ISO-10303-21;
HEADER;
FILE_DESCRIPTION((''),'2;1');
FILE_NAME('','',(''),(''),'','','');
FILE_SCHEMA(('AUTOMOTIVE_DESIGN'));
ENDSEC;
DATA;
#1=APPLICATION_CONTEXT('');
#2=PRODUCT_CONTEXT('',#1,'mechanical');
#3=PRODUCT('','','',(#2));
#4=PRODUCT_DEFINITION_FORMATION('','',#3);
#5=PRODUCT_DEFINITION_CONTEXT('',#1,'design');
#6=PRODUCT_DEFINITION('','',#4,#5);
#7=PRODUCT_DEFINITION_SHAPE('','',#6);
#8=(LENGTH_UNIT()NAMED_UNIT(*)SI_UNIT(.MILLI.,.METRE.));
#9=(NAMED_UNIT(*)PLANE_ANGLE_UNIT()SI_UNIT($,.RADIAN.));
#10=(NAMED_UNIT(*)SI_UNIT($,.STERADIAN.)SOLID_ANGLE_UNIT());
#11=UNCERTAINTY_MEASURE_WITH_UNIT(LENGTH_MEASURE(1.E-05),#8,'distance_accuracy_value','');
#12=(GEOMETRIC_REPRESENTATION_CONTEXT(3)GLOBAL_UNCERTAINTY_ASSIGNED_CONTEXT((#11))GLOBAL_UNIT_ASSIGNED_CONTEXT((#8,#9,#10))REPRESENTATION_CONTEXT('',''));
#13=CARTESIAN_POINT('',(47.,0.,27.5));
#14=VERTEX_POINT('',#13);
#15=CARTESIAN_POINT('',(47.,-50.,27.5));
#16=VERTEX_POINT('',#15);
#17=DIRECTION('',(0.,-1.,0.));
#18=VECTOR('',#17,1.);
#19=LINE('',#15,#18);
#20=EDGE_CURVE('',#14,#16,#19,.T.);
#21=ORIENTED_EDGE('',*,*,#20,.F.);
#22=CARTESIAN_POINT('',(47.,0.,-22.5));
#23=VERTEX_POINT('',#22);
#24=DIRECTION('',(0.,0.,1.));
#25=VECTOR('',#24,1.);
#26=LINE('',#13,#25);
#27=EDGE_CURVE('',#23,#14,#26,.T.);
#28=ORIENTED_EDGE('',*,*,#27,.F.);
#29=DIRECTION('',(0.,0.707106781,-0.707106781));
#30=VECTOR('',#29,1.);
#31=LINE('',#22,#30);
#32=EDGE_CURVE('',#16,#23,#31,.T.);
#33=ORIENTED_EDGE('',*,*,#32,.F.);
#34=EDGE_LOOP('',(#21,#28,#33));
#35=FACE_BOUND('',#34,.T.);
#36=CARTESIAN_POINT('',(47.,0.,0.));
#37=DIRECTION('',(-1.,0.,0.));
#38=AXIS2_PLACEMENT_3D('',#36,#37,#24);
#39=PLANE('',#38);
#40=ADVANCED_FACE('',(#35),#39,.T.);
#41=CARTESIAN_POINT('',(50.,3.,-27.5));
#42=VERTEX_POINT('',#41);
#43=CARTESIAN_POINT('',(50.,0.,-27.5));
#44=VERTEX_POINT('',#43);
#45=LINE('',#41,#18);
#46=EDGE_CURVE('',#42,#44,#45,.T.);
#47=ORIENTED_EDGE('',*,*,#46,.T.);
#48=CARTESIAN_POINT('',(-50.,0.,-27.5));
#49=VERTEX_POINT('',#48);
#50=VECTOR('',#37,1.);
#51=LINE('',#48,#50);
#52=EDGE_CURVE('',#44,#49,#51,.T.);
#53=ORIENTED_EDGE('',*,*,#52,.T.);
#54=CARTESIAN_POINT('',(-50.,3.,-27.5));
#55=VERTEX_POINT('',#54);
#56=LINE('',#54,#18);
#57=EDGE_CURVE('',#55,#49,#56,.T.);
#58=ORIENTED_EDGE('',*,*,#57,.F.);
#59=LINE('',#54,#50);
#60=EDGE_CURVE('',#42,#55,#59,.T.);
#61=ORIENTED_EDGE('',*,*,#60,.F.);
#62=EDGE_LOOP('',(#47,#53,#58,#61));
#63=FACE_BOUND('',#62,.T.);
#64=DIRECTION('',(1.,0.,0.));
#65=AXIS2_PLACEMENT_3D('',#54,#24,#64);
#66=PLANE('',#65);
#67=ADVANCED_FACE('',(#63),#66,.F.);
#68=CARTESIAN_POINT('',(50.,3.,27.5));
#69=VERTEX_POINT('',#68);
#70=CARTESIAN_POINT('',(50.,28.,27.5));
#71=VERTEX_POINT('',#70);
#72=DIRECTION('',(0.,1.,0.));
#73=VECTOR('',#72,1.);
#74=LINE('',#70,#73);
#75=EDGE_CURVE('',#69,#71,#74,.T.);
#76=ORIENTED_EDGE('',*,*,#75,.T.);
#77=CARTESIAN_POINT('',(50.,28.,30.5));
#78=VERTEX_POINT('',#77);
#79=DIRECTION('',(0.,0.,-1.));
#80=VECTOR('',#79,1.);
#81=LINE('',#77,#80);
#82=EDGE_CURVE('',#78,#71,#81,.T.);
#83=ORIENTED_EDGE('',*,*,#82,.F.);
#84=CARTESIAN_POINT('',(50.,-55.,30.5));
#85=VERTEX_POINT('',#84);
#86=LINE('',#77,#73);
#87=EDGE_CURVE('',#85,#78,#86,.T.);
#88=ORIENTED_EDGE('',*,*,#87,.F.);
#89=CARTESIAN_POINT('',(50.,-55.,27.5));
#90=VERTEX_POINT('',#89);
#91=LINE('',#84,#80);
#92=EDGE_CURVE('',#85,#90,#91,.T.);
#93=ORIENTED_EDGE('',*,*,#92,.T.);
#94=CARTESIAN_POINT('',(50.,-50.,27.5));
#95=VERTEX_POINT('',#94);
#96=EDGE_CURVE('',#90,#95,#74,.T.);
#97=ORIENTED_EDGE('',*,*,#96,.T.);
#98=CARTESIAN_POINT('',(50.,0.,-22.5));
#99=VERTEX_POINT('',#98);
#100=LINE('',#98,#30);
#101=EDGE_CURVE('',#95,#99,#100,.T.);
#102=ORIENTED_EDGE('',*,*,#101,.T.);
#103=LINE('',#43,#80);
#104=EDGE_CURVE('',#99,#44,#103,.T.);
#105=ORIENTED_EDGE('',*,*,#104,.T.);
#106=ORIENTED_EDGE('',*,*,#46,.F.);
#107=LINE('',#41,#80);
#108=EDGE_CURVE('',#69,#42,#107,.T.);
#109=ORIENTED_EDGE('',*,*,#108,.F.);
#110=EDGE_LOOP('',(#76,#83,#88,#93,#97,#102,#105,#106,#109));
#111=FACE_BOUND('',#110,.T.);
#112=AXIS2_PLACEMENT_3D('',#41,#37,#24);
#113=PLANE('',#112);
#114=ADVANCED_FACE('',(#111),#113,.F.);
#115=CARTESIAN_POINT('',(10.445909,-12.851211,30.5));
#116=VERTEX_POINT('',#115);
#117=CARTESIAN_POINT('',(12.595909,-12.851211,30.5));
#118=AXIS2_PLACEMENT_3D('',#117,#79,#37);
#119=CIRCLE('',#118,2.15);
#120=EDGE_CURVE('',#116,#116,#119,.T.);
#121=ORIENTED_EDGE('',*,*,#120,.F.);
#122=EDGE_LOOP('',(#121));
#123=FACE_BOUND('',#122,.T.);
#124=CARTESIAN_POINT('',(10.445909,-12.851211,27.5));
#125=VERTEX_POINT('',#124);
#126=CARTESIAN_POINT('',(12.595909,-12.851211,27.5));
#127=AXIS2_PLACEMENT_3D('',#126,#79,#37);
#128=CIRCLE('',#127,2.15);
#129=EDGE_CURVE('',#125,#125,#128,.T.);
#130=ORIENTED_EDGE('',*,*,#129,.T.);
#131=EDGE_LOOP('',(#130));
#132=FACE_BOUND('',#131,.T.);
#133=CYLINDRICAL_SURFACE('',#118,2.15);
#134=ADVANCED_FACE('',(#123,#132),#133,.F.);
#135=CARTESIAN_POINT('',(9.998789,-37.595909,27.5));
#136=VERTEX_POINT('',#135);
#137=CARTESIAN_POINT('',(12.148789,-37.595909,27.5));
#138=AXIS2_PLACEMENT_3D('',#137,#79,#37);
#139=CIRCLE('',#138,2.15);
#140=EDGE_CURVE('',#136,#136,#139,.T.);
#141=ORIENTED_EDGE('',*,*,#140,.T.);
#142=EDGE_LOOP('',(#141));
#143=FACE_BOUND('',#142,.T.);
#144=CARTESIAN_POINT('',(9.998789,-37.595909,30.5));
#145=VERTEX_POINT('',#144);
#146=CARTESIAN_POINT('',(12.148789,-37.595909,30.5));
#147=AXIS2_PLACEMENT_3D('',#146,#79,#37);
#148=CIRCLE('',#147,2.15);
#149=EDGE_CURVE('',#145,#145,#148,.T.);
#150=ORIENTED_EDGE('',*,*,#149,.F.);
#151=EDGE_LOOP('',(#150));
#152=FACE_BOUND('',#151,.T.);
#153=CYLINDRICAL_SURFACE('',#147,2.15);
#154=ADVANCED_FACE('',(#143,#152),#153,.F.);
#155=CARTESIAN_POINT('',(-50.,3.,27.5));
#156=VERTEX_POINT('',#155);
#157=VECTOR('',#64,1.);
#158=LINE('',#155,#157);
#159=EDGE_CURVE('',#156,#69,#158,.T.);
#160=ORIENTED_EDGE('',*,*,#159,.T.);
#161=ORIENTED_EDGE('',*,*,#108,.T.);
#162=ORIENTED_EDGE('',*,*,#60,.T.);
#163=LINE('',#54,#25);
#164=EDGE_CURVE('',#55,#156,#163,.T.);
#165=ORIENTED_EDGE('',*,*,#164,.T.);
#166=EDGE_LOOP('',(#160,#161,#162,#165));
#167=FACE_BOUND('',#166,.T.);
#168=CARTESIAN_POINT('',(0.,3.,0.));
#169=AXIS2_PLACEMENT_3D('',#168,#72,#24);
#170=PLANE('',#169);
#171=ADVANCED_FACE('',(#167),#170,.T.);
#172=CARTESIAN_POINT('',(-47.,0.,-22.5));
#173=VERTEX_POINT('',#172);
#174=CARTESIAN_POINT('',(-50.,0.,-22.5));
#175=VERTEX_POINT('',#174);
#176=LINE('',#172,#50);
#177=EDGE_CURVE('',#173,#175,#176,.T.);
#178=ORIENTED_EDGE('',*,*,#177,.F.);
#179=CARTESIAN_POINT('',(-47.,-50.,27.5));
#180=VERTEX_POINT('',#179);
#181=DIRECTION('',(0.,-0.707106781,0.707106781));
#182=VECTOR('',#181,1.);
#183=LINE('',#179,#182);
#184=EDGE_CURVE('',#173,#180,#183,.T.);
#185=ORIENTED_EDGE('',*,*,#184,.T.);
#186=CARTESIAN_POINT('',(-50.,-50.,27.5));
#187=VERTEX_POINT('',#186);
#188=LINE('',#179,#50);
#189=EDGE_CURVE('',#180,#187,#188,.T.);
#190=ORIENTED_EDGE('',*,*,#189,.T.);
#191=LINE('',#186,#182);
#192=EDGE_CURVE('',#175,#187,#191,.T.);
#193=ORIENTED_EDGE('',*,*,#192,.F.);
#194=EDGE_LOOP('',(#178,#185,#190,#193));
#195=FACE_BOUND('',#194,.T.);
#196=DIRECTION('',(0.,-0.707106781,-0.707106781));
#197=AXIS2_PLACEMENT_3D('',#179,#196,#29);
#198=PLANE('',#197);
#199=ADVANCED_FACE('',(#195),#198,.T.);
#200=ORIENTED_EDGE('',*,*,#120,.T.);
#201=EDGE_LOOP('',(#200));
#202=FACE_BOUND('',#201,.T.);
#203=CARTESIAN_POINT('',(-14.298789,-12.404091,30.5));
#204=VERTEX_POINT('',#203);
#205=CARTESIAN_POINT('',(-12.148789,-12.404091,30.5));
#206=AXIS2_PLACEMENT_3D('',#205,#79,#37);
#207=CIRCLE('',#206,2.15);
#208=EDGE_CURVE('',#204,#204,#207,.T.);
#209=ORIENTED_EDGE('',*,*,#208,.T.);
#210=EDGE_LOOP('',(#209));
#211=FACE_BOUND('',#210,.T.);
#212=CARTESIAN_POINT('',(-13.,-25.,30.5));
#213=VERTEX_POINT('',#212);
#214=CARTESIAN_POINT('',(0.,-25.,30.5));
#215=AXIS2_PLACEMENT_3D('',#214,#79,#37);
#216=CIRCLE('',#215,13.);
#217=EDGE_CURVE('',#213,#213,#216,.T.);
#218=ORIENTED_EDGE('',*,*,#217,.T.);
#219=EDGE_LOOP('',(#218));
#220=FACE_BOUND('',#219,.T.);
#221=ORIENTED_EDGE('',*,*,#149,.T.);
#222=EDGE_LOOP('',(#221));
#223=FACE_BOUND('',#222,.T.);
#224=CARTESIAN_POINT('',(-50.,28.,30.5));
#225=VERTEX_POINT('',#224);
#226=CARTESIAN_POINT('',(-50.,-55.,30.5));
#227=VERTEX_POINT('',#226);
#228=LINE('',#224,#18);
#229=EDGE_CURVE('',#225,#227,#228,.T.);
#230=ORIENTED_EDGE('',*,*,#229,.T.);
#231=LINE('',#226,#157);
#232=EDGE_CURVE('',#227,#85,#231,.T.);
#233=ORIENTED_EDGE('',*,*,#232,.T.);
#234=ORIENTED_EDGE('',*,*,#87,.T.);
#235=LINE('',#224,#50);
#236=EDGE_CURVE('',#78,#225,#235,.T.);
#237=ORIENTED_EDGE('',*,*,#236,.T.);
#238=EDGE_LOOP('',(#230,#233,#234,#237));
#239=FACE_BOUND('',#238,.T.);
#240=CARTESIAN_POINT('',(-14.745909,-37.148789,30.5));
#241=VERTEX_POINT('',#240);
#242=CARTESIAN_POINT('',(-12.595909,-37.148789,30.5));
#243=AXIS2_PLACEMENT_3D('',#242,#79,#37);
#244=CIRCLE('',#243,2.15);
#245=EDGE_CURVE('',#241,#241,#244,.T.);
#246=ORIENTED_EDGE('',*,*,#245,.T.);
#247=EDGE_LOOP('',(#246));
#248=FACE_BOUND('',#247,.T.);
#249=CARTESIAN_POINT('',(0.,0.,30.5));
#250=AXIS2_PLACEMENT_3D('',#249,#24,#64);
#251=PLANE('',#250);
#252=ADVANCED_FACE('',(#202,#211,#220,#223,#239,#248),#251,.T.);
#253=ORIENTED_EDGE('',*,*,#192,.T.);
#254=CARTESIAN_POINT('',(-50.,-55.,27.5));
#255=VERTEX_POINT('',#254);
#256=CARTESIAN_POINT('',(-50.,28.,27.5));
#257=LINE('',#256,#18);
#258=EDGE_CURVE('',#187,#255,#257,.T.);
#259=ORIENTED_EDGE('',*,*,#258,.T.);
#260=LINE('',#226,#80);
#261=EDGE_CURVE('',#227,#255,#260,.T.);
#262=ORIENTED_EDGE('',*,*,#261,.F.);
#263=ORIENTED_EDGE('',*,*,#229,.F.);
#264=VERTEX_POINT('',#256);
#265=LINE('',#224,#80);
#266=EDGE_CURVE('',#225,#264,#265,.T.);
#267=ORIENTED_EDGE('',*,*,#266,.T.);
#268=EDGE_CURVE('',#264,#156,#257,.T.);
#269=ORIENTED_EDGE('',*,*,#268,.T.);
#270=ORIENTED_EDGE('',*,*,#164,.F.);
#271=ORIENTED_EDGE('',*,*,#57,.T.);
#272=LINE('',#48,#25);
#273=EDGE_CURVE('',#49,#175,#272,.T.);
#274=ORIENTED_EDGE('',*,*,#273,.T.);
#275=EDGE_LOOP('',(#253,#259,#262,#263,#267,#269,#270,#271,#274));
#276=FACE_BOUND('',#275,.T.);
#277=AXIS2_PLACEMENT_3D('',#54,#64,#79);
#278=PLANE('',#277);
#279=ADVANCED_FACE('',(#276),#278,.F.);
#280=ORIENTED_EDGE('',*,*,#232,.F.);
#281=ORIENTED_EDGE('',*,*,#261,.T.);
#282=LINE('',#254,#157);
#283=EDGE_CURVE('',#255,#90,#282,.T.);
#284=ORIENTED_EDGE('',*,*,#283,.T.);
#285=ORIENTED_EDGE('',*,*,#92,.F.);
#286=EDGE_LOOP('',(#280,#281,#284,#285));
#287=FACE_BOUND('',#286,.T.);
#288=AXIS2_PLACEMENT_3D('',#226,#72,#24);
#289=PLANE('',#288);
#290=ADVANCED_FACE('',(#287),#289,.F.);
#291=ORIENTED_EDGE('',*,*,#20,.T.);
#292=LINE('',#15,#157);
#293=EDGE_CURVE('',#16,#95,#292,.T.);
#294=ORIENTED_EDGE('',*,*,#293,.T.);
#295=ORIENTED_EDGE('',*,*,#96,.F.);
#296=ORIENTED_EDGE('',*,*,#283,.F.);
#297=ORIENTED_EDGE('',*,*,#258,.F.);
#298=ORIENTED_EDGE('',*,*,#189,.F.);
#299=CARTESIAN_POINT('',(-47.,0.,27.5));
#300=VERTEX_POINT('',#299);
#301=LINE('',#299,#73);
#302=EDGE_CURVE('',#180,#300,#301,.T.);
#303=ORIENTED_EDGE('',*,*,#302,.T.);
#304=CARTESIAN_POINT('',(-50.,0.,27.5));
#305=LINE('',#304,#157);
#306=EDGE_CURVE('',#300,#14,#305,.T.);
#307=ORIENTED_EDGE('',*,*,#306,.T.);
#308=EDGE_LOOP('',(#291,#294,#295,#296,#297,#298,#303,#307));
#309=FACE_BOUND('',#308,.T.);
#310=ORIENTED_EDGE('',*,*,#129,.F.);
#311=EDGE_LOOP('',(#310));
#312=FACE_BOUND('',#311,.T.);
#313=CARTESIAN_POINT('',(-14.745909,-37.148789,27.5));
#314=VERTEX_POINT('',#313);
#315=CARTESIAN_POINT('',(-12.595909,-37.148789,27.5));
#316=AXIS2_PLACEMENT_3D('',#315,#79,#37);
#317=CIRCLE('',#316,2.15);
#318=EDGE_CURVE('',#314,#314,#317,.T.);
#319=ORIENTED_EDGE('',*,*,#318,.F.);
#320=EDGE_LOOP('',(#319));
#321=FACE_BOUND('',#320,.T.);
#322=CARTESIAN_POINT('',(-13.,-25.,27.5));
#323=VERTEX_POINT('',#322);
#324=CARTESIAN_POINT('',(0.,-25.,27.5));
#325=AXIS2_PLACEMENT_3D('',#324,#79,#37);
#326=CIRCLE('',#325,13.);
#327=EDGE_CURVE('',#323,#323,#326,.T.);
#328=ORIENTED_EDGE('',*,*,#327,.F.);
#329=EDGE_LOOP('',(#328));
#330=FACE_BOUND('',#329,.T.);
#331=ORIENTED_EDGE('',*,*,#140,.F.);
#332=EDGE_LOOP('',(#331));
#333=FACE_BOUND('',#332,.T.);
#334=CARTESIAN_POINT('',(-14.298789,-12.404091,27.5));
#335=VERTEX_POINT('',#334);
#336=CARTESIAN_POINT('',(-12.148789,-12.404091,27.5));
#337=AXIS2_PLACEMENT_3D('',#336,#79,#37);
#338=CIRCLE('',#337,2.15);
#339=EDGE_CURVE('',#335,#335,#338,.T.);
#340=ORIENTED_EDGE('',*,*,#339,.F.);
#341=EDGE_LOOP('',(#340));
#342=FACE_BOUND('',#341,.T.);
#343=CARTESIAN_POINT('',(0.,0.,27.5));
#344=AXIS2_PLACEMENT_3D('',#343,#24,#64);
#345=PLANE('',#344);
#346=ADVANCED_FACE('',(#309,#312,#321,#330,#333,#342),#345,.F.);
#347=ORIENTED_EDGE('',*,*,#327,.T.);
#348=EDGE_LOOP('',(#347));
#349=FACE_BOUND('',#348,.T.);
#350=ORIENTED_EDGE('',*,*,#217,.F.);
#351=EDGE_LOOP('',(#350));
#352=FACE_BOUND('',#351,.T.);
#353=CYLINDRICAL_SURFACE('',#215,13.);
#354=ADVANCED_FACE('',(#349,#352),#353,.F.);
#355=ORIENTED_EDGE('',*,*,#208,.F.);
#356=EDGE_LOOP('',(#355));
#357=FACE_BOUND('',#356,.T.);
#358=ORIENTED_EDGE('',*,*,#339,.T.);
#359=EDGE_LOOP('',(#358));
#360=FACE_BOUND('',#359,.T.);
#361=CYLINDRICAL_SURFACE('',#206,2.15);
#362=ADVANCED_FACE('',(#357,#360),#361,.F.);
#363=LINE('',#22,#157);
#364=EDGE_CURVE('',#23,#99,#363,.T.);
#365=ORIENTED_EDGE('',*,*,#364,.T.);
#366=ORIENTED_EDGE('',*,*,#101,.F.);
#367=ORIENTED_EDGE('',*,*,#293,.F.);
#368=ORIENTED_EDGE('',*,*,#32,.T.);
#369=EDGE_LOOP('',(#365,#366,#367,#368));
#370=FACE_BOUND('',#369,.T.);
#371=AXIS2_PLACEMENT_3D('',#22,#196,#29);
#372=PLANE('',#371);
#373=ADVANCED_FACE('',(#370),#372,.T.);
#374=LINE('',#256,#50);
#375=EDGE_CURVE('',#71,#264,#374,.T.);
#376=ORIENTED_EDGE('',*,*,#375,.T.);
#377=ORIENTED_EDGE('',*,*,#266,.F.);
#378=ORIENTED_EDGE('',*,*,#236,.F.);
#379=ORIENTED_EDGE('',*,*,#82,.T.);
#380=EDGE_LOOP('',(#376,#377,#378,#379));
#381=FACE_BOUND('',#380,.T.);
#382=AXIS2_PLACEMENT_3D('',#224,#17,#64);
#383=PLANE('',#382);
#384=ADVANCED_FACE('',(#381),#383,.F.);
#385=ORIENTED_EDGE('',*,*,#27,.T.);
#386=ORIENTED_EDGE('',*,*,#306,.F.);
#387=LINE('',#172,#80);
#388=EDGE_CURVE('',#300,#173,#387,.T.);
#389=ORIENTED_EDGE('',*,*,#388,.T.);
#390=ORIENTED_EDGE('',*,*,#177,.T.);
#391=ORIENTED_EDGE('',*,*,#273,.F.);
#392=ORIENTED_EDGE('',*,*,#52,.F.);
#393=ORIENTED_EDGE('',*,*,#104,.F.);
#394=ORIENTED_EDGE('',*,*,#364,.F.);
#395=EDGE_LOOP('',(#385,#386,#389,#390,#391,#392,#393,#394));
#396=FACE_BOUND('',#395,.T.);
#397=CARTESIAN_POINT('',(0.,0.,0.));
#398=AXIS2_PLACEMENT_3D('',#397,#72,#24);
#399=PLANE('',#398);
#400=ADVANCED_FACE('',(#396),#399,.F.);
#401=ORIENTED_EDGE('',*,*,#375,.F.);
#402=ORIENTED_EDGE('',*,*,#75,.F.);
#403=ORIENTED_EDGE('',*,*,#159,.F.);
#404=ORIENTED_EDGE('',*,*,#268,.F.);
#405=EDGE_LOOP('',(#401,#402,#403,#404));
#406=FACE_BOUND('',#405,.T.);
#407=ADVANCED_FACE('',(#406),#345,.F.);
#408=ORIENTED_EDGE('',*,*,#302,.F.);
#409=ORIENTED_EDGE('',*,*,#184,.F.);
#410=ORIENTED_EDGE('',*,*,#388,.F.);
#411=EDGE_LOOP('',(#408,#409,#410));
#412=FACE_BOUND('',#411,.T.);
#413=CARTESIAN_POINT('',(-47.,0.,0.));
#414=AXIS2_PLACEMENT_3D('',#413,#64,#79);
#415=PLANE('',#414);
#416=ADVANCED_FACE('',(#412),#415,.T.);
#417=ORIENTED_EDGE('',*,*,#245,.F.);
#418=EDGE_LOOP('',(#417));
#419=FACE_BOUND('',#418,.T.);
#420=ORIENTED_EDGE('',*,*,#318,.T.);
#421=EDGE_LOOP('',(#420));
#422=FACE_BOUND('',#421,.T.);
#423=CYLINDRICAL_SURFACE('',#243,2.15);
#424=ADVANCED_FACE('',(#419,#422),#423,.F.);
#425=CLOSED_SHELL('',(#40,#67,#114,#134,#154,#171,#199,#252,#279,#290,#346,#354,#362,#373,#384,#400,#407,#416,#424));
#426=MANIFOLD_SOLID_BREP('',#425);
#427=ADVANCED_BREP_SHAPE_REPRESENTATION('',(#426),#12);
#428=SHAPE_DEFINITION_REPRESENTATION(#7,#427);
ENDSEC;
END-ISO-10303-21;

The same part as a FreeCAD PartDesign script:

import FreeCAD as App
import Part
import Sketcher
from FreeCAD import Vector
Q = App.Units.Quantity


def add_polygon(sketch, points):
    """Adds a closed chain of lines whose ends are joined by coincident constraints."""
    first, n = sketch.GeometryCount, len(points)
    for a, b in zip(points, points[1:] + points[:1]):
        sketch.addGeometry(Part.LineSegment(App.Vector(*a, 0), App.Vector(*b, 0)), False)
    for i in range(n):
        sketch.addConstraint(Sketcher.Constraint("Coincident", first + i, 2, first + (i + 1) % n, 1))

doc = App.newDocument("Part")
body = doc.addObject("PartDesign::Body", "Body")

# Sketch on XZ plane
sketch1 = body.newObject("Sketcher::SketchObject", "Sketch")
sketch1.AttachmentSupport = (doc.getObject("XZ_Plane"), [""])
sketch1.MapMode = "FlatFace"
add_polygon(sketch1, [(-50, -27.5), (-50, 27.5), (50, 27.5), (50, -27.5)])  # lines 0-3
sketch1.addConstraint(Sketcher.Constraint("Vertical", 0))
sketch1.addConstraint(Sketcher.Constraint("Horizontal", 1))
sketch1.addConstraint(Sketcher.Constraint("Vertical", 2))
sketch1.addConstraint(Sketcher.Constraint("Horizontal", 3))
sketch1.addConstraint(Sketcher.Constraint("Symmetric", 0, 2, 2, 2, -1, 1))
sketch1.addConstraint(Sketcher.Constraint("DistanceX", 1, 1, 1, 2, Q("100 mm")))
sketch1.addConstraint(Sketcher.Constraint("DistanceY", 0, 1, 0, 2, Q("55 mm")))
pad1 = body.newObject("PartDesign::Pad", "Pad")
pad1.Profile = sketch1
pad1.Length = 3
pad1.Reversed = True

# Sketch on XY plane
sketch2 = body.newObject("Sketcher::SketchObject", "Sketch001")
sketch2.AttachmentSupport = (doc.getObject("XY_Plane"), [""])
sketch2.MapMode = "FlatFace"
sketch2.AttachmentOffset = App.Placement(Vector(0, 0, 27.5), App.Rotation())
add_polygon(sketch2, [(-50, 28), (-50, -55), (50, -55), (50, 28)])  # lines 0-3
sketch2.addConstraint(Sketcher.Constraint("Vertical", 0))
sketch2.addConstraint(Sketcher.Constraint("Horizontal", 1))
sketch2.addConstraint(Sketcher.Constraint("Vertical", 2))
sketch2.addConstraint(Sketcher.Constraint("Horizontal", 3))
sketch2.addConstraint(Sketcher.Constraint("DistanceX", 1, 1, 1, 2, Q("100 mm")))
sketch2.addConstraint(Sketcher.Constraint("DistanceY", 0, 2, 0, 1, Q("83 mm")))
sketch2.addConstraint(Sketcher.Constraint("DistanceX", 0, 2, -1, 1, Q("50 mm")))
sketch2.addConstraint(Sketcher.Constraint("DistanceY", 0, 2, -1, 1, Q("55 mm")))
pad2 = body.newObject("PartDesign::Pad", "Pad001")
pad2.Profile = sketch2
pad2.Length = 3

# Sketch on YZ plane
sketch3 = body.newObject("Sketcher::SketchObject", "Sketch002")
sketch3.AttachmentSupport = (doc.getObject("YZ_Plane"), [""])
sketch3.MapMode = "FlatFace"
sketch3.AttachmentOffset = App.Placement(Vector(0, 0, 50), App.Rotation())
add_polygon(sketch3, [(0, -22.5), (0, 27.5), (-50, 27.5)])  # lines 0-2
sketch3.addConstraint(Sketcher.Constraint("Vertical", 0))
sketch3.addConstraint(Sketcher.Constraint("Horizontal", 1))
sketch3.addConstraint(Sketcher.Constraint("PointOnObject", 0, 2, -2))
sketch3.addConstraint(Sketcher.Constraint("Equal", 1, 0))
sketch3.addConstraint(Sketcher.Constraint("DistanceX", 1, 2, 1, 1, Q("50 mm")))
sketch3.addConstraint(Sketcher.Constraint("DistanceY", -1, 1, 0, 2, Q("27.5 mm")))
pad3 = body.newObject("PartDesign::Pad", "Pad002")
pad3.Profile = sketch3
pad3.Length = 3
pad3.Reversed = True

# Sketch on YZ plane
sketch4 = body.newObject("Sketcher::SketchObject", "Sketch003")
sketch4.AttachmentSupport = (doc.getObject("YZ_Plane"), [""])
sketch4.MapMode = "FlatFace"
sketch4.AttachmentOffset = App.Placement(Vector(0, 0, -50), App.Rotation())
add_polygon(sketch4, [(-50, 27.5), (0, 27.5), (0, -22.5)])  # lines 0-2
sketch4.addConstraint(Sketcher.Constraint("Horizontal", 0))
sketch4.addConstraint(Sketcher.Constraint("Vertical", 1))
sketch4.addConstraint(Sketcher.Constraint("PointOnObject", 0, 2, -2))
sketch4.addConstraint(Sketcher.Constraint("Equal", 0, 1))
sketch4.addConstraint(Sketcher.Constraint("DistanceX", 0, 1, 0, 2, Q("50 mm")))
sketch4.addConstraint(Sketcher.Constraint("DistanceY", -1, 1, 0, 2, Q("27.5 mm")))
pad4 = body.newObject("PartDesign::Pad", "Pad003")
pad4.Profile = sketch4
pad4.Length = 3

# Sketch on XY plane
sketch5 = body.newObject("Sketcher::SketchObject", "Sketch004")
sketch5.AttachmentSupport = (doc.getObject("XY_Plane"), [""])
sketch5.MapMode = "FlatFace"
sketch5.AttachmentOffset = App.Placement(Vector(0, 0, 27.5), App.Rotation())
sketch5.addGeometry(Part.Circle(Vector(0, -25, 0), Vector(0, 0, 1), 13), False)
sketch5.addGeometry(Part.Circle(Vector(-12.148789, -12.404091, 0), Vector(0, 0, 1), 2.15), False)
sketch5.addGeometry(Part.Circle(Vector(-12.595909, -37.148789, 0), Vector(0, 0, 1), 2.15), False)
sketch5.addGeometry(Part.Circle(Vector(12.148789, -37.595909, 0), Vector(0, 0, 1), 2.15), False)
sketch5.addGeometry(Part.Circle(Vector(12.595909, -12.851211, 0), Vector(0, 0, 1), 2.15), False)
sketch5.addConstraint(Sketcher.Constraint("Equal", 1, 2))
sketch5.addConstraint(Sketcher.Constraint("Equal", 2, 3))
sketch5.addConstraint(Sketcher.Constraint("Equal", 3, 4))
sketch5.addConstraint(Sketcher.Constraint("PointOnObject", 0, 3, -2))
sketch5.addConstraint(Sketcher.Constraint("Diameter", 0, Q("26 mm")))
sketch5.addConstraint(Sketcher.Constraint("Diameter", 1, Q("4.3 mm")))
sketch5.addConstraint(Sketcher.Constraint("DistanceY", 0, 3, -1, 1, Q("25 mm")))
sketch5.addConstraint(Sketcher.Constraint("DistanceY", 2, 3, 1, 3, Q("24.744698 mm")))
sketch5.addConstraint(Sketcher.Constraint("DistanceX", 2, 3, 3, 3, Q("24.744698 mm")))
sketch5.addConstraint(Sketcher.Constraint("DistanceX", 1, 3, 4, 3, Q("24.744698 mm")))
sketch5.addConstraint(Sketcher.Constraint("DistanceY", 3, 3, 4, 3, Q("24.744698 mm")))
sketch5.addConstraint(Sketcher.Constraint("DistanceX", 1, 3, -1, 1, Q("12.148789 mm")))
sketch5.addConstraint(Sketcher.Constraint("DistanceY", 1, 3, -1, 1, Q("12.404091 mm")))
sketch5.addConstraint(Sketcher.Constraint("DistanceX", 2, 3, -1, 1, Q("12.595909 mm")))
sketch5.addConstraint(Sketcher.Constraint("DistanceY", 3, 3, -1, 1, Q("37.595909 mm")))
pocket1 = body.newObject("PartDesign::Pocket", "Pocket")
pocket1.Profile = sketch5
pocket1.Type = "ThroughAll"
pocket1.Reversed = True

doc.recompute()
